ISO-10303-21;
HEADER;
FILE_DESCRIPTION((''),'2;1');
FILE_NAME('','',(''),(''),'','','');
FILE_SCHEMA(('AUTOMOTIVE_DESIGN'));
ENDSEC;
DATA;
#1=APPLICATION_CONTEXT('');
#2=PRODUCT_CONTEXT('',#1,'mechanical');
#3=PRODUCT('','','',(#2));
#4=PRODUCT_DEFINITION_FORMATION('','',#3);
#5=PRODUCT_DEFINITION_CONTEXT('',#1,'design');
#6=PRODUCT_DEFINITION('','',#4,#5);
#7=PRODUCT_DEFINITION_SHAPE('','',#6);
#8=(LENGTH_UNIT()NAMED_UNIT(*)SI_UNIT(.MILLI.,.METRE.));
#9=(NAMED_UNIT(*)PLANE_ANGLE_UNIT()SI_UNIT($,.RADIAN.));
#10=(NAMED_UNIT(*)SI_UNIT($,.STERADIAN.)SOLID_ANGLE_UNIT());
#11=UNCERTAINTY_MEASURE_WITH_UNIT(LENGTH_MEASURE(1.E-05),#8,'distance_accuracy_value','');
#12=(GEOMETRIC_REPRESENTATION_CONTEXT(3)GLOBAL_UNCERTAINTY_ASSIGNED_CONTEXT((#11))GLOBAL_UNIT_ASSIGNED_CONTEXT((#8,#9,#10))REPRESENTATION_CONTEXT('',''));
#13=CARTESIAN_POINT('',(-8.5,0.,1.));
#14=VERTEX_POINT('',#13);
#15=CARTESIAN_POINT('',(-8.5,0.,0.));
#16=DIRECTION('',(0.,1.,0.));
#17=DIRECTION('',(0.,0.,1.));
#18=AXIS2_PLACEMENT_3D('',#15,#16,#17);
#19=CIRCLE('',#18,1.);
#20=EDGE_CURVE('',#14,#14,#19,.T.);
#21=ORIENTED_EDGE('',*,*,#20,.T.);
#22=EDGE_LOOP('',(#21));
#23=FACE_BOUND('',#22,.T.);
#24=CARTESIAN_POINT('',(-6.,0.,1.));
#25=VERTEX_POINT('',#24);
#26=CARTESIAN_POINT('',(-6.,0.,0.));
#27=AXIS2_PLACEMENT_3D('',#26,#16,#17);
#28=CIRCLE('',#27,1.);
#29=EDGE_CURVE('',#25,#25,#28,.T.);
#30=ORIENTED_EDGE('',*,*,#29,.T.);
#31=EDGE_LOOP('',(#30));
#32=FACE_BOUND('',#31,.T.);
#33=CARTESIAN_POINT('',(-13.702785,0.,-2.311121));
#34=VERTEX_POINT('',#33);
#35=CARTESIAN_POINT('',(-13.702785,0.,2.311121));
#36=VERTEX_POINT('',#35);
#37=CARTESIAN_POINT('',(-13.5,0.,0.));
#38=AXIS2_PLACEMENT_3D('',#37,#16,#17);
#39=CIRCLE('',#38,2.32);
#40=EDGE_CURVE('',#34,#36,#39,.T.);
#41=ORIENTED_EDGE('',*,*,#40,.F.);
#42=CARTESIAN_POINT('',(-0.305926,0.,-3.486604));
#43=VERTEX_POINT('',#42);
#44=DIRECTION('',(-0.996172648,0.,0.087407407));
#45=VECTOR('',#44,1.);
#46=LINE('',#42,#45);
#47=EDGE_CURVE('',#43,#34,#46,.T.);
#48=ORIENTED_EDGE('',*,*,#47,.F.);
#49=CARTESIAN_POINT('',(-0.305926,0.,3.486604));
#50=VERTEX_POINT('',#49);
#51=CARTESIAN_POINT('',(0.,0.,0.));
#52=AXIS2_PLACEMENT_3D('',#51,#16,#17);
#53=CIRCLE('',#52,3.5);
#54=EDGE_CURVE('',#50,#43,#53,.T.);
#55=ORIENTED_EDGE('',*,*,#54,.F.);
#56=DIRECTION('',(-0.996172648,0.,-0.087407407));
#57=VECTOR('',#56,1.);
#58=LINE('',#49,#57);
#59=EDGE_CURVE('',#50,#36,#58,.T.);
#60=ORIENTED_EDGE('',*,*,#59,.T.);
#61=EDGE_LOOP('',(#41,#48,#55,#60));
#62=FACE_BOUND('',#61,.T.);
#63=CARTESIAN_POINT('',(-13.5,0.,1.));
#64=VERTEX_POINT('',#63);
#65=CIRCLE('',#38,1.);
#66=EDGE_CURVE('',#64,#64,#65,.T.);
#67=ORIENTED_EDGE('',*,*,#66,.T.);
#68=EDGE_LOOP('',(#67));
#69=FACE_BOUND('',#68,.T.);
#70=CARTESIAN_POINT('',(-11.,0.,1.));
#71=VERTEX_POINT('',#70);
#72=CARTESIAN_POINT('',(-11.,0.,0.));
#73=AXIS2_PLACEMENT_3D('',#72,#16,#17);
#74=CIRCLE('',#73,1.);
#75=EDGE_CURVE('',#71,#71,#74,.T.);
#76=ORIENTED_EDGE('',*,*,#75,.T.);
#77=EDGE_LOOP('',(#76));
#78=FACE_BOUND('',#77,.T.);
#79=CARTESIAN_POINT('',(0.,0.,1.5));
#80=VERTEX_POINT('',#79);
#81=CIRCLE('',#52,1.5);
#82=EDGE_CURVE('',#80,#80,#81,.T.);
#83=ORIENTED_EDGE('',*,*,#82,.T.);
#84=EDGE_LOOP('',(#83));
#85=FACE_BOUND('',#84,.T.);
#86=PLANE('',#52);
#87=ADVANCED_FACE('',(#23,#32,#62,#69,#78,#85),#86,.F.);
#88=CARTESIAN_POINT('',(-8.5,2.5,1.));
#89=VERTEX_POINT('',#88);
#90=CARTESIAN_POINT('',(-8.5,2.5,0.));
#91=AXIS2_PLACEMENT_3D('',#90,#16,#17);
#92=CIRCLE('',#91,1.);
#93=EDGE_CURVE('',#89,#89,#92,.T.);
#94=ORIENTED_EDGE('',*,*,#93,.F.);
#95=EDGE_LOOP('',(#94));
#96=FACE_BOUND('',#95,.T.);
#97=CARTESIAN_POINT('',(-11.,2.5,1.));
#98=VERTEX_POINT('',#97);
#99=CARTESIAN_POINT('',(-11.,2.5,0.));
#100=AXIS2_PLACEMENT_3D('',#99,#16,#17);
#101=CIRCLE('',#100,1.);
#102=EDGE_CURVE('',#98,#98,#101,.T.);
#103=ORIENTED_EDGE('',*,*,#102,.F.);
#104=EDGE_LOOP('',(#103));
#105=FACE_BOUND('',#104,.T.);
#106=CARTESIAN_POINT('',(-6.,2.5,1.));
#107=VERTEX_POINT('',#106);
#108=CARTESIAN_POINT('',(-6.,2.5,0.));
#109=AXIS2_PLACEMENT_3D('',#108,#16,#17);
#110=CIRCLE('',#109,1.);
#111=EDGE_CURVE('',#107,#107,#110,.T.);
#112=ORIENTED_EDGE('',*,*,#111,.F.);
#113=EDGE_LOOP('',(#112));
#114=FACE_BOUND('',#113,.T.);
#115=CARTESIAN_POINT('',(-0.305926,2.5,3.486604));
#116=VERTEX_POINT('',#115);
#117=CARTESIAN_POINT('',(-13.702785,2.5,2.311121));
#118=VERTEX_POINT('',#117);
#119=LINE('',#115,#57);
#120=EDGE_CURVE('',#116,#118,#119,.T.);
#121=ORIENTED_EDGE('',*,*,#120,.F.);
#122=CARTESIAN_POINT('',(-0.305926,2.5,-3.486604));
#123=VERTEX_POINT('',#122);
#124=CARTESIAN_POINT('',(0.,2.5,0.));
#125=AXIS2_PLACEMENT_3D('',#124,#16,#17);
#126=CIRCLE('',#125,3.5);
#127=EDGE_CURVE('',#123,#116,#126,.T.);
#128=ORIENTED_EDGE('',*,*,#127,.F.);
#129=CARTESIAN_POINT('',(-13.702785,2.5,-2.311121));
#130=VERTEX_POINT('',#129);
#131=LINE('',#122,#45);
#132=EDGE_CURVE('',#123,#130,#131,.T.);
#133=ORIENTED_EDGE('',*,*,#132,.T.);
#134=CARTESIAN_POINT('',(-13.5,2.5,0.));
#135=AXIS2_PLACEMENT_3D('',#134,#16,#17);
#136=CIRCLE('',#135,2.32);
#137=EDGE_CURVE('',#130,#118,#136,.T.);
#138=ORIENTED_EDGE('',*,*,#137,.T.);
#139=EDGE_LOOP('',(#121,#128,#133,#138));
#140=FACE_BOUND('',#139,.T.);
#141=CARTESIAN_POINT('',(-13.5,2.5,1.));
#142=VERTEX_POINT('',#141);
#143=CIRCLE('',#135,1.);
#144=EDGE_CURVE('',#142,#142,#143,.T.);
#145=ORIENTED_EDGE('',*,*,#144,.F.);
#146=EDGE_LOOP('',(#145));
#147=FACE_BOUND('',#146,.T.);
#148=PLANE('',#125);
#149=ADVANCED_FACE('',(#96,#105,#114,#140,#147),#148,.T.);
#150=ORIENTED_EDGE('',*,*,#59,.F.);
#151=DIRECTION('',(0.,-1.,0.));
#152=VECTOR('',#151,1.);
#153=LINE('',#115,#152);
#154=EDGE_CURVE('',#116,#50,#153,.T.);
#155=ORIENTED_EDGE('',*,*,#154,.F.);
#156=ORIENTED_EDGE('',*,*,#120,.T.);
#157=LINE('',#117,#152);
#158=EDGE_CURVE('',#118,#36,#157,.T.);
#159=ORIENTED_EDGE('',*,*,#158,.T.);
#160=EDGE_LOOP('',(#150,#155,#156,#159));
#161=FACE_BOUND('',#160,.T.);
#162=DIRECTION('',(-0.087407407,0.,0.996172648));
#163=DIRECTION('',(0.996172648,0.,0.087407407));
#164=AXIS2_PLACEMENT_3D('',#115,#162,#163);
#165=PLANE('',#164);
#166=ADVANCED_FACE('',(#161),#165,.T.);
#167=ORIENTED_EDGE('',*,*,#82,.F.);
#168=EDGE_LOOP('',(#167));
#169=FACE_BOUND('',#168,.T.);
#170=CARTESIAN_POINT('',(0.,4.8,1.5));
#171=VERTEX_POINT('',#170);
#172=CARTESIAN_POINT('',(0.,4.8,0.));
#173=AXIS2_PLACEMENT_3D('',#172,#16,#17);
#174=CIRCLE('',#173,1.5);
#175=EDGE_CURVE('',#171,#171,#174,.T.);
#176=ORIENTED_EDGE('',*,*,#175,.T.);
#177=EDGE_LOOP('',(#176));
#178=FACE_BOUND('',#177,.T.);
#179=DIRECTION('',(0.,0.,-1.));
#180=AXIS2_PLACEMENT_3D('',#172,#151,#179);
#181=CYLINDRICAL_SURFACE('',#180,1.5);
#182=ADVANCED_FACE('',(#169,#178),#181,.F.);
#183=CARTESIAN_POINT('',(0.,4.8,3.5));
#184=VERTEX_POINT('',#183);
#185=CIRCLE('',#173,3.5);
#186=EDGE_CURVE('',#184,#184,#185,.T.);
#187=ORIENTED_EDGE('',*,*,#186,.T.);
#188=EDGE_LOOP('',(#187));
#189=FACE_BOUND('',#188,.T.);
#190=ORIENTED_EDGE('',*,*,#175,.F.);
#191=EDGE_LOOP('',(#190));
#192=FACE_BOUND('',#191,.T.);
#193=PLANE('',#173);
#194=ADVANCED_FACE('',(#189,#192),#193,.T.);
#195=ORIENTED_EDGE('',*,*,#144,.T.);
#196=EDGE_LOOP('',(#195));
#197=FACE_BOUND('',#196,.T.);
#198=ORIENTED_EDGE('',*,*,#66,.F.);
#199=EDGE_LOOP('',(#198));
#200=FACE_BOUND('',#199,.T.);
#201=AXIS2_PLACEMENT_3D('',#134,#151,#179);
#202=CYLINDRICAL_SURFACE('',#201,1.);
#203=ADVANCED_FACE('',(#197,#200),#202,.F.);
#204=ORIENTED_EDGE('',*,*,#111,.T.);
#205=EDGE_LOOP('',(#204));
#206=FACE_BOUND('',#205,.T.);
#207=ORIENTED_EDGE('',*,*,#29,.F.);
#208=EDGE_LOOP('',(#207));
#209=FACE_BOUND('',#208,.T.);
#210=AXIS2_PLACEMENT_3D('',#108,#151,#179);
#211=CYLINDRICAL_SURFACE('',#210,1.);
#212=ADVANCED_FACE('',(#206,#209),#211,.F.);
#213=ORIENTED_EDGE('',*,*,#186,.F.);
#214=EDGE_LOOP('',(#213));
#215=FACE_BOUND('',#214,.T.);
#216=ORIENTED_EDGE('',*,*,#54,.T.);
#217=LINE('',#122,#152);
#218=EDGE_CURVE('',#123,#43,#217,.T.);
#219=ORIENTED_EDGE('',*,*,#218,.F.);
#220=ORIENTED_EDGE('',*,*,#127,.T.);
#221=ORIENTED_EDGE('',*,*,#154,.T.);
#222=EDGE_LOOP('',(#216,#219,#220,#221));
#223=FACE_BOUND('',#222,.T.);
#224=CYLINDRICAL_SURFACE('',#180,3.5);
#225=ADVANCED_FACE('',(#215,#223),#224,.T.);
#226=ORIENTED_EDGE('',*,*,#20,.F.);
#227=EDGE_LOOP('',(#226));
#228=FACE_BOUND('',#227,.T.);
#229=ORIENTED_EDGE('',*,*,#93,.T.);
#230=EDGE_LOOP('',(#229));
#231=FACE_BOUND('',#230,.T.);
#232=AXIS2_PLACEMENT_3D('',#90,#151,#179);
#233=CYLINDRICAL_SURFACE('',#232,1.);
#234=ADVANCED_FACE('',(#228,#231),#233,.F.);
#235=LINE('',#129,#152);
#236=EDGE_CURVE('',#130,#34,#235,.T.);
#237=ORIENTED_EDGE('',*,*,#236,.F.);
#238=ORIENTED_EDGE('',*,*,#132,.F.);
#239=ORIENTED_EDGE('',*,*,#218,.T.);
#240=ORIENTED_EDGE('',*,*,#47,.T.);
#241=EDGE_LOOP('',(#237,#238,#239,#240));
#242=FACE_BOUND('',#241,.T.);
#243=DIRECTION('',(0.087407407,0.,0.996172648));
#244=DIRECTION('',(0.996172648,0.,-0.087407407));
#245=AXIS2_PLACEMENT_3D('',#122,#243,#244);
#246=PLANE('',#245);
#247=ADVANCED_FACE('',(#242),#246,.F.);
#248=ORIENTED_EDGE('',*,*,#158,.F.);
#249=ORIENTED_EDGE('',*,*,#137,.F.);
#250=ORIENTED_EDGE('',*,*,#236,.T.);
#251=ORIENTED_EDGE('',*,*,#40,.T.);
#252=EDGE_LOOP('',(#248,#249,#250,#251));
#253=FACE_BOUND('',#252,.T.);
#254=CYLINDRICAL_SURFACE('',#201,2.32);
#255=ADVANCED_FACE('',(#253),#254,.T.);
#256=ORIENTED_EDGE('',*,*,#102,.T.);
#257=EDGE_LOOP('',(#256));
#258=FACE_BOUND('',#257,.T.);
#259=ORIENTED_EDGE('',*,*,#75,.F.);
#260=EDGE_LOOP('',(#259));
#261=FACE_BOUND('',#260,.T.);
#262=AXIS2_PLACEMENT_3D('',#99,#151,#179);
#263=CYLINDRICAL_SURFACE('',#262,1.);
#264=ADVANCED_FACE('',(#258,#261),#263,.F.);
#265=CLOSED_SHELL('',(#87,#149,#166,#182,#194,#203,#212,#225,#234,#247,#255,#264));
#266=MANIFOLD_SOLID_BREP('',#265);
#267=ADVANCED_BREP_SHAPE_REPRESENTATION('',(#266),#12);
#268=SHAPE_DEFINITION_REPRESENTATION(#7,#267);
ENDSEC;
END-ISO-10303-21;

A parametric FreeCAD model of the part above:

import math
import FreeCAD as App
import Part
import Sketcher
from FreeCAD import Vector

doc = App.newDocument("Part")
body = doc.addObject("PartDesign::Body", "Body")

# Sketch on XZ plane
sketch1 = doc.addObject("Sketcher::SketchObject", "Sketch")
body.addObject(sketch1)
sketch1.AttachmentSupport = (doc.XZ_Plane, [""])
sketch1.MapMode = "FlatFace"
sketch1.addGeometry([
    Part.ArcOfCircle(Part.Circle(Vector(0, 0, 0), Vector(0, 0, 1), 3.5), math.radians(95), math.radians(265)),  # 0
    Part.LineSegment(Vector(-0.3, -3.5, 0), Vector(-13.7, -2.3, 0)),  # 1
    Part.ArcOfCircle(Part.Circle(Vector(-13.5, 0, 0), Vector(0, 0, 1), 2.3), math.radians(95), math.radians(265)),  # 2
    Part.LineSegment(Vector(-13.7, 2.3, 0), Vector(-0.3, 3.5, 0)),  # 3
    Part.Circle(Vector(-13.5, 0, 0), Vector(0, 0, 1), 1),  # 4
    Part.Circle(Vector(-11, 0, 0), Vector(0, 0, 1), 1),  # 5
    Part.Circle(Vector(-8.5, 0, 0), Vector(0, 0, 1), 1),  # 6
    Part.Circle(Vector(-6, 0, 0), Vector(0, 0, 1), 1),  # 7
], False)
sketch1.addConstraint([
    Sketcher.Constraint("Tangent", 0, 2, 1, 1),
    Sketcher.Constraint("Tangent", 1, 2, 2, 2),
    Sketcher.Constraint("Tangent", 2, 1, 3, 1),
    Sketcher.Constraint("Tangent", 3, 2, 0, 1),
    Sketcher.Constraint("Coincident", 0, 3, -1, 1),
    Sketcher.Constraint("Coincident", 4, 3, 2, 3),
    Sketcher.Constraint("Equal", 4, 5),
    Sketcher.Constraint("Equal", 5, 6),
    Sketcher.Constraint("Equal", 6, 7),
    Sketcher.Constraint("PointOnObject", 2, 3, -1),
    Sketcher.Constraint("PointOnObject", 5, 3, -1),
    Sketcher.Constraint("PointOnObject", 6, 3, -1),
    Sketcher.Constraint("PointOnObject", 7, 3, -1),
    Sketcher.Constraint("Diameter", 4, 2.0),
    Sketcher.Constraint("Radius", 0, 3.5),
    Sketcher.Constraint("Radius", 2, 2.32),
    Sketcher.Constraint("DistanceX", 5, 3, -1, 1, 11.0),
    Sketcher.Constraint("DistanceX", 7, 3, -1, 1, 6.0),
    Sketcher.Constraint("DistanceX", 2, 3, 6, 3, 5.0),
    Sketcher.Constraint("DistanceX", 2, 3, -1, 1, 13.5),
])
pad1 = doc.addObject("PartDesign::Pad", "Pad")
body.addObject(pad1)
pad1.Profile = sketch1
pad1.Length = 2.5
pad1.Reversed = True

# Sketch on XZ plane
sketch2 = doc.addObject("Sketcher::SketchObject", "Sketch001")
body.addObject(sketch2)
sketch2.AttachmentSupport = (doc.XZ_Plane, [""])
sketch2.MapMode = "FlatFace"
sketch2.addGeometry([
    Part.Circle(Vector(0, 0, 0), Vector(0, 0, 1), 3.5),
    Part.Circle(Vector(0, 0, 0), Vector(0, 0, 1), 1.5),
], False)
sketch2.addConstraint([
    Sketcher.Constraint("Coincident", 0, 3, -1, 1),
    Sketcher.Constraint("Coincident", 1, 3, -1, 1),
    Sketcher.Constraint("Diameter", 0, 7.0),
    Sketcher.Constraint("Diameter", 1, 3.0),
])
pad2 = doc.addObject("PartDesign::Pad", "Pad001")
body.addObject(pad2)
pad2.Profile = sketch2
pad2.Length = 4.8
pad2.Reversed = True

doc.recompute()
